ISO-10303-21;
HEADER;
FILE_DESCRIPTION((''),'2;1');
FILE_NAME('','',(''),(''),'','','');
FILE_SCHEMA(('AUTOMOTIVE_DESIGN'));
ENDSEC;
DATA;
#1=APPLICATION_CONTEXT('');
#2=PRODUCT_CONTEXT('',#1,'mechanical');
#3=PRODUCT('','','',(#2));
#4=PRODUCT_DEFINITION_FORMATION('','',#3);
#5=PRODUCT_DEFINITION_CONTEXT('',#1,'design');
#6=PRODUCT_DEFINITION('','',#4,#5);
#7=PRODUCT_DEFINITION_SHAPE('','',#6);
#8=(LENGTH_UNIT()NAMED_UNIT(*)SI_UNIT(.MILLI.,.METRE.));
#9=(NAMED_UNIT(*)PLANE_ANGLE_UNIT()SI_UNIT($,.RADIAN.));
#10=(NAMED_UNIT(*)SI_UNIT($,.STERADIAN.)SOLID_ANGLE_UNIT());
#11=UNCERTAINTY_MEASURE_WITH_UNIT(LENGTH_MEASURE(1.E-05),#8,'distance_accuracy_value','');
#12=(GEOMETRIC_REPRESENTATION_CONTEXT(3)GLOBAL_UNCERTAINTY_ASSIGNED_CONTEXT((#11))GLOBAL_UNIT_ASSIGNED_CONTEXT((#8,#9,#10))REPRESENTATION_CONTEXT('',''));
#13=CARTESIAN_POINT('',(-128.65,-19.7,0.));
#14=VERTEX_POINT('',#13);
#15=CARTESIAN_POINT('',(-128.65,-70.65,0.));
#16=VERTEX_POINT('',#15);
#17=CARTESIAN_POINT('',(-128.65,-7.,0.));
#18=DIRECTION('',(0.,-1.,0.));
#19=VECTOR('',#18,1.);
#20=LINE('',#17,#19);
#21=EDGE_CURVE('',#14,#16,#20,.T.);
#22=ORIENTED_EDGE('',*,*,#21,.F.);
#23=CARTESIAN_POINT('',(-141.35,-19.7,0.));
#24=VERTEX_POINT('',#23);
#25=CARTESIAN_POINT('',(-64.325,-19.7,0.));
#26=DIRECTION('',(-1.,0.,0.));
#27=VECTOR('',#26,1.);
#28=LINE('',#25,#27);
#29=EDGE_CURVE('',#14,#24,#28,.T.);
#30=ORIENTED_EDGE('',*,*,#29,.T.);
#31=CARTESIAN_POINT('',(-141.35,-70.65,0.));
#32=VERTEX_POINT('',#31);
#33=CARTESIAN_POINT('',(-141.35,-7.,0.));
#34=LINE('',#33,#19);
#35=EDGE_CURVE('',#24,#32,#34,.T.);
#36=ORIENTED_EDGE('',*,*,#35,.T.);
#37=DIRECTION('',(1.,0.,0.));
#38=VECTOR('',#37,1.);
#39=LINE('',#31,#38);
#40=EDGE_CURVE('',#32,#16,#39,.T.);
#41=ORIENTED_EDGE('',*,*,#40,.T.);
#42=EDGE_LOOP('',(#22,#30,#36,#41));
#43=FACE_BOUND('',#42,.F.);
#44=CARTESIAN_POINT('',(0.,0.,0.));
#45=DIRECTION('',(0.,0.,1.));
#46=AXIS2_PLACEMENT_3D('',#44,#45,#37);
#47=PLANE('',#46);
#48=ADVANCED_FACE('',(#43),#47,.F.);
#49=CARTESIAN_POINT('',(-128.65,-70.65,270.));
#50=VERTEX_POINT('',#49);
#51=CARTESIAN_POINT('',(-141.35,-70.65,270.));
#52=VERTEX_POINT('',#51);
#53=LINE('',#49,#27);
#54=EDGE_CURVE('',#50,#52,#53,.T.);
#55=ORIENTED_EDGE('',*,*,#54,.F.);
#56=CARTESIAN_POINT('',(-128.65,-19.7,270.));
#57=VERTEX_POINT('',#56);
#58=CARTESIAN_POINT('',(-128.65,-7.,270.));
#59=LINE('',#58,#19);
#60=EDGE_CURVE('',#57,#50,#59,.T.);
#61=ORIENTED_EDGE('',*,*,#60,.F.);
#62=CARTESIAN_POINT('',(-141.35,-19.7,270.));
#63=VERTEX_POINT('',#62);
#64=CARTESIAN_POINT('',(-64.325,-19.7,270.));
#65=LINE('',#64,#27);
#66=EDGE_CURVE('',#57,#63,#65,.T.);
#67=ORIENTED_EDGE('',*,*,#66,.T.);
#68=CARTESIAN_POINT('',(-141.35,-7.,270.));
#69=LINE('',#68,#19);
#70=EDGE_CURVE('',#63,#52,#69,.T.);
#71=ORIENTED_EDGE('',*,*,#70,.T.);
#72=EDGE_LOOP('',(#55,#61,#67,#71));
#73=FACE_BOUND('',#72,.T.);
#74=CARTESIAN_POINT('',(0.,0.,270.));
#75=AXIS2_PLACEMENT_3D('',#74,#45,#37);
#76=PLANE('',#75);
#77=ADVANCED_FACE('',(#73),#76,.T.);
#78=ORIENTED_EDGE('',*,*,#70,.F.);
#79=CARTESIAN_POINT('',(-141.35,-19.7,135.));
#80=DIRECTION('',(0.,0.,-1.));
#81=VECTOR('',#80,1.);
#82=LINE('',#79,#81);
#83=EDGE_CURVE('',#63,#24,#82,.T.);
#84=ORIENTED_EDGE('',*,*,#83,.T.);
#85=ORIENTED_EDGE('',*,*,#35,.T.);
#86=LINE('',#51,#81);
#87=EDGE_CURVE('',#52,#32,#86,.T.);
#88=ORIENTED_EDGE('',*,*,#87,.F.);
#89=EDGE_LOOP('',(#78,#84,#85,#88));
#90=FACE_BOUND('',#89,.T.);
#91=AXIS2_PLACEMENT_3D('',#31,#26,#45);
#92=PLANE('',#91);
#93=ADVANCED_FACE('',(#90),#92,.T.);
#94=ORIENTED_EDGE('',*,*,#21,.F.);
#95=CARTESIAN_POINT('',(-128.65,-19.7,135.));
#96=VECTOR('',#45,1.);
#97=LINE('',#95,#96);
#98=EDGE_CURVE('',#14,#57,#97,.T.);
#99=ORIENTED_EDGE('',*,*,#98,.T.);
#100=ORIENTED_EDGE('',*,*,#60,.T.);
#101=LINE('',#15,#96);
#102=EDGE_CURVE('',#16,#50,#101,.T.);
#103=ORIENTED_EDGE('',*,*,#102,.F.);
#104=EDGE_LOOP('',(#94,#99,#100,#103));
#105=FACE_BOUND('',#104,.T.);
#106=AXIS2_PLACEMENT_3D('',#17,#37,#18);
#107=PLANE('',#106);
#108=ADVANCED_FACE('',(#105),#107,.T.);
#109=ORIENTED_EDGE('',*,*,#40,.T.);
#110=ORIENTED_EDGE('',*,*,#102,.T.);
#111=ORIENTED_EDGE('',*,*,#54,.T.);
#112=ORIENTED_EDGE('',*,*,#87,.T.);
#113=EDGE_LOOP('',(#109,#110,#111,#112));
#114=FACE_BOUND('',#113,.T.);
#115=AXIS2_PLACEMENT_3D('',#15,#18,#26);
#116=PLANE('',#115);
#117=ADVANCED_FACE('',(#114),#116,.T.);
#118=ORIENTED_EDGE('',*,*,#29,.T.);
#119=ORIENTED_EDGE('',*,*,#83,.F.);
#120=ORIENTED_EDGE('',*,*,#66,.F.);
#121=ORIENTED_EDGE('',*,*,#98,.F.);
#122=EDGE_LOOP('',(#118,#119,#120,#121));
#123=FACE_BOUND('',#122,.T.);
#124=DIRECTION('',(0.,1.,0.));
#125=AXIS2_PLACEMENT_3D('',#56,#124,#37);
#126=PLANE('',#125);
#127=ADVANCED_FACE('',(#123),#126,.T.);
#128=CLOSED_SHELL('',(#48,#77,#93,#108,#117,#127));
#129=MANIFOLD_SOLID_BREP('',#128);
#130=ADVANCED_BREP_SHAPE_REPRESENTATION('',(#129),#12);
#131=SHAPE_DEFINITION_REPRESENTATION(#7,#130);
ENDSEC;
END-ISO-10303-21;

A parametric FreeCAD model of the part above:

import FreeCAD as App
import Part
import Sketcher
from FreeCAD import Vector
Q = App.Units.Quantity


def add_polygon(sketch, points):
    """Adds a closed chain of lines whose ends are joined by coincident constraints."""
    first, n = sketch.GeometryCount, len(points)
    for a, b in zip(points, points[1:] + points[:1]):
        sketch.addGeometry(Part.LineSegment(App.Vector(*a, 0), App.Vector(*b, 0)), False)
    for i in range(n):
        sketch.addConstraint(Sketcher.Constraint("Coincident", first + i, 2, first + (i + 1) % n, 1))

doc = App.newDocument("Part")
body = doc.addObject("PartDesign::Body", "Body")

# Sketch on XY plane
sketch1 = body.newObject("Sketcher::SketchObject", "Sketch")
sketch1.AttachmentSupport = (doc.getObject("XY_Plane"), [""])
sketch1.MapMode = "FlatFace"
add_polygon(sketch1, [(-135, -71), (-129, -71), (-129, -7), (-135, -7)])  # lines 0-3
sketch1.addConstraint(Sketcher.Constraint("Horizontal", 0))
sketch1.addConstraint(Sketcher.Constraint("Vertical", 1))
sketch1.addConstraint(Sketcher.Constraint("Horizontal", 2))
sketch1.addConstraint(Sketcher.Constraint("Vertical", 3))
sketch1.addConstraint(Sketcher.Constraint("DistanceX", 0, 1, 0, 2, Q("0.25 in")))
sketch1.addConstraint(Sketcher.Constraint("DistanceY", 1, 1, 1, 2, Q("2.5059 in")))
sketch1.addConstraint(Sketcher.Constraint("DistanceY", 0, 2, -1, 1, Q("2.7815 in")))
sketch1.addConstraint(Sketcher.Constraint("DistanceX", 0, 2, -1, 1, Q("128.65 mm")))
pad1 = body.newObject("PartDesign::Pad", "Pad")
pad1.Profile = sketch1
pad1.Length = 270

# Sketch on YZ plane
sketch2 = body.newObject("Sketcher::SketchObject", "Sketch001")
sketch2.AttachmentSupport = (doc.getObject("YZ_Plane"), [""])
sketch2.MapMode = "FlatFace"
sketch2.AttachmentOffset = App.Placement(Vector(0, 0, -135), App.Rotation())
add_polygon(sketch2, [(-7, 270), (-7, 0), (-71, 0), (-71, 270)])  # lines 0-3
sketch2.addConstraint(Sketcher.Constraint("Vertical", 0))
sketch2.addConstraint(Sketcher.Constraint("Horizontal", 1))
sketch2.addConstraint(Sketcher.Constraint("Vertical", 2))
sketch2.addConstraint(Sketcher.Constraint("Horizontal", 3))
sketch2.addConstraint(Sketcher.Constraint("PointOnObject", 0, 2, -1))
sketch2.addConstraint(Sketcher.Constraint("DistanceX", 1, 2, 1, 1, Q("2.5059 in")))
sketch2.addConstraint(Sketcher.Constraint("DistanceY", 0, 2, 0, 1, Q("270 mm")))
sketch2.addConstraint(Sketcher.Constraint("DistanceX", 0, 2, -1, 1, Q("0.2756 in")))
pad2 = body.newObject("PartDesign::Pad", "Pad001")
pad2.Profile = sketch2
pad2.Length = Q("0.25 in")
pad2.Reversed = True

# Sketch on XZ plane
sketch3 = body.newObject("Sketcher::SketchObject", "Sketch002")
sketch3.AttachmentSupport = (doc.getObject("XZ_Plane"), [""])
sketch3.MapMode = "FlatFace"
sketch3.AttachmentOffset = App.Placement(Vector(0, 0, 0.2755906 * 25.4), App.Rotation())
add_polygon(sketch3, [(-96, 344), (-96, -60), (-200, -60), (-200, 344)])  # lines 0-3
sketch3.addConstraint(Sketcher.Constraint("Vertical", 0))
sketch3.addConstraint(Sketcher.Constraint("Horizontal", 1))
sketch3.addConstraint(Sketcher.Constraint("Vertical", 2))
sketch3.addConstraint(Sketcher.Constraint("Horizontal", 3))
sketch3.addConstraint(Sketcher.Constraint("DistanceX", 1, 2, 1, 1, Q("4.0945 in")))
sketch3.addConstraint(Sketcher.Constraint("DistanceY", 0, 2, 0, 1, Q("15.9055 in")))
sketch3.addConstraint(Sketcher.Constraint("DistanceY", 0, 2, -1, 1, Q("2.3622 in")))
sketch3.addConstraint(Sketcher.Constraint("DistanceX", 0, 2, -1, 1, Q("95.65 mm")))
pocket1 = body.newObject("PartDesign::Pocket", "Pocket")
pocket1.Profile = sketch3
pocket1.Length = Q("0.5 in")
pocket1.Reversed = True

doc.recompute()
